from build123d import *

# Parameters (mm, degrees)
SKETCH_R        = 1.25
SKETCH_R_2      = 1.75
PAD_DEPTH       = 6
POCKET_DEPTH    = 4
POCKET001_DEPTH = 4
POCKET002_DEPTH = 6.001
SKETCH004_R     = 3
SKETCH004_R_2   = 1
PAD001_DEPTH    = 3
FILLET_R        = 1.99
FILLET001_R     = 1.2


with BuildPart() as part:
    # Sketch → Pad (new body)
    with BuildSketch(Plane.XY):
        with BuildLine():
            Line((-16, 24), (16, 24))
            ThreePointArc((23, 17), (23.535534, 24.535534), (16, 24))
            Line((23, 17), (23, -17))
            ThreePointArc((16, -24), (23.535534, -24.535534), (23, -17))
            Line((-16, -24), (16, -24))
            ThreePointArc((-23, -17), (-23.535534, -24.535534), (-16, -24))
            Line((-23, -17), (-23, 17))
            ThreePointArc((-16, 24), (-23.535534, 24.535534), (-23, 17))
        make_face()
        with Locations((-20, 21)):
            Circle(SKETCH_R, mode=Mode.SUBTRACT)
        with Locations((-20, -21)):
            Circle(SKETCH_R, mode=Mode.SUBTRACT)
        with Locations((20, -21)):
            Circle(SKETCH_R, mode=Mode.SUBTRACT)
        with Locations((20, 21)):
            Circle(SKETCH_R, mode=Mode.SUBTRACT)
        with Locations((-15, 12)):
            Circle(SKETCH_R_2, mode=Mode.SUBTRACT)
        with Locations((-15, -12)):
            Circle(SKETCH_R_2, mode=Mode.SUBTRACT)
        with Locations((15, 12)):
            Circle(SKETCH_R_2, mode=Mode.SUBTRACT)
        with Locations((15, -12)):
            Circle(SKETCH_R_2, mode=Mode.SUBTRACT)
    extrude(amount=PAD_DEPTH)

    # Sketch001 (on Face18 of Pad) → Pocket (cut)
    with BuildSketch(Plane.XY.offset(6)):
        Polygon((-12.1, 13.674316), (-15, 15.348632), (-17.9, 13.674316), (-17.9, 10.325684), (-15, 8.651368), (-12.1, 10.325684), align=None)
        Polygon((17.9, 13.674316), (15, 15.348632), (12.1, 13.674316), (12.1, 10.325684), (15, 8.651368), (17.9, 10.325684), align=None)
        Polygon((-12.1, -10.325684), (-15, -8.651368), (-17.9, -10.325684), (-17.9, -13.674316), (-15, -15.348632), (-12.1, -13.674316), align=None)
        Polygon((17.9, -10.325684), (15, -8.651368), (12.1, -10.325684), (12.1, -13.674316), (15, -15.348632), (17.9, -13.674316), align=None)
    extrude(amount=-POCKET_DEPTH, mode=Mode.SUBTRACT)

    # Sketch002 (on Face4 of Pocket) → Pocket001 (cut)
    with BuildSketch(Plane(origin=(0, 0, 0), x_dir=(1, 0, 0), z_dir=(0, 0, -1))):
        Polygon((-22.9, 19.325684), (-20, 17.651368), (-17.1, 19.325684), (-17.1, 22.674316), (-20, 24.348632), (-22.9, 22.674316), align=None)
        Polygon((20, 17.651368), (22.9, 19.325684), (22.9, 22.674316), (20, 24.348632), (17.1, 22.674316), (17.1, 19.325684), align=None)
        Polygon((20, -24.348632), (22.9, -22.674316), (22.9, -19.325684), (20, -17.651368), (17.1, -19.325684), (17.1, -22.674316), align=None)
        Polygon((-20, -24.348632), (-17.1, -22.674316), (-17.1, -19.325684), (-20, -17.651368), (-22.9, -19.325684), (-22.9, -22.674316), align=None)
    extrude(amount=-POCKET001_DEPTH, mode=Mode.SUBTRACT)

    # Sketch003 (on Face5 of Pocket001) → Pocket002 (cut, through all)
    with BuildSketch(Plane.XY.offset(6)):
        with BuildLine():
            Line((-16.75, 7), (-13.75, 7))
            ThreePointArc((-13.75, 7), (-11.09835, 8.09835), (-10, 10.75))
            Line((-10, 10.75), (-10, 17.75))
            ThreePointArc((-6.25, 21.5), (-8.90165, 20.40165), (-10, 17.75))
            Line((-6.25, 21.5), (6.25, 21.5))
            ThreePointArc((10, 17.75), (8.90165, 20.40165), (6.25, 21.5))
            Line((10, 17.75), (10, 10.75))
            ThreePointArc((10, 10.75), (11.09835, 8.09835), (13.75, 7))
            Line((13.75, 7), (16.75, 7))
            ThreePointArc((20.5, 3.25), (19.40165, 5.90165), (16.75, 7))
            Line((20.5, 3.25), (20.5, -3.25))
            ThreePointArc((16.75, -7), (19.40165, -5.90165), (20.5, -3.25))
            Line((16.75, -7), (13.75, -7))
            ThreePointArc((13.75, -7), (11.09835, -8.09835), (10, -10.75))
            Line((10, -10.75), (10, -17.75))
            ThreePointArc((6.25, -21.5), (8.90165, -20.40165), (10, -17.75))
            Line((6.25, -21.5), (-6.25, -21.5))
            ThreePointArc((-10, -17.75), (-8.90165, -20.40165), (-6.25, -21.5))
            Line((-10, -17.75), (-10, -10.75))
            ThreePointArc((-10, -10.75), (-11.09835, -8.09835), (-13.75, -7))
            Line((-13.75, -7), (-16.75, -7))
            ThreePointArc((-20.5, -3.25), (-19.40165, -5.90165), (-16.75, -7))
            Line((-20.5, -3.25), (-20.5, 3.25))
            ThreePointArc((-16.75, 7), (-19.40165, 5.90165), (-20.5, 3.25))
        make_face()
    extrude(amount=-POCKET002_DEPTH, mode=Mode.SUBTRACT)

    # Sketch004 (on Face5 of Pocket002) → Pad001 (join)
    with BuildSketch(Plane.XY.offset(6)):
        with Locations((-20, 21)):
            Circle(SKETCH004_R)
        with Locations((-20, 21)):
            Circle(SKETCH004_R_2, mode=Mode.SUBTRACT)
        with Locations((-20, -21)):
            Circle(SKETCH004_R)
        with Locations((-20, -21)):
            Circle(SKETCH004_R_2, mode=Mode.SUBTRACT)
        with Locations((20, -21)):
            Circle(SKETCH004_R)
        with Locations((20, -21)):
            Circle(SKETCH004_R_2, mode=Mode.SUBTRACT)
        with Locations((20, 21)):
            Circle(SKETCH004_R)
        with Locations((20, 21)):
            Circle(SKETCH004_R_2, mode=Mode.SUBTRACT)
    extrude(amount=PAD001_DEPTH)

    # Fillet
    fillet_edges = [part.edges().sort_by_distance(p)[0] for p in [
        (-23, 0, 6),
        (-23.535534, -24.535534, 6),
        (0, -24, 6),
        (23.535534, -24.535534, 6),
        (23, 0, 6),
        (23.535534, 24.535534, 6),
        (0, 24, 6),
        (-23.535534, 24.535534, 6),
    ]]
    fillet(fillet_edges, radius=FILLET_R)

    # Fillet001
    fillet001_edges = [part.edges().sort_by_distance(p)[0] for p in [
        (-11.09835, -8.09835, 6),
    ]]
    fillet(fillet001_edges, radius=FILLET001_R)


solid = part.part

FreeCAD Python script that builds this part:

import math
import FreeCAD as App
import Part
import Sketcher
from FreeCAD import Vector
Q = App.Units.Quantity


def edges_at(feature, points):
    """Names of the edges that pass closest to the given points."""
    edges = feature.Shape.Edges
    near = lambda p: min(range(len(edges)), key=lambda i: edges[i].distToShape(Part.Vertex(*p))[0])
    return sorted({f"Edge{near(p) + 1}" for p in points})

doc = App.newDocument("Part")
params = doc.addObject("Spreadsheet::Sheet", "Params")
for row, (alias, value) in enumerate([
    ("sketch1_radius", "5 mm"),
    ("sketch1_diameter", "2.5 mm"),
    ("sketch1_diameter2", "3.5 mm"),
    ("sketch1_width", "32 mm"),
    ("sketch1_height", "34 mm"),
    ("pad1_length", "6 mm"),
    ("pocket1_length", "4 mm"),
    ("pocket2_length", "4 mm"),
    ("sketch4_width", "3 mm"),
    ("sketch4_height", "7 mm"),
    ("sketch4_radius", "3.750001 mm"),
    ("sketch4_width2", "12.5 mm"),
    ("sketch4_height2", "6.5 mm"),
    ("sketch5_diameter", "6 mm"),
    ("sketch5_diameter2", "2 mm"),
    ("pad2_length", "3 mm"),
    ("fillet_radius", "1.99 mm"),
    ("fillet2_radius", "1.2 mm"),
], start=1):
    params.set(f"A{row}", alias)
    params.set(f"B{row}", "=" + value)
    params.setAlias(f"B{row}", alias)

body = doc.addObject("PartDesign::Body", "Body")

sketch1 = body.newObject("Sketcher::SketchObject", "Sketch")
sketch1.AttachmentSupport = (doc.getObject("XY_Plane"), [""])
sketch1.MapMode = "FlatFace"
sketch1.addGeometry([
    Part.LineSegment(Vector(16, 24, 0), Vector(-16, 24, 0)),
    Part.ArcOfCircle(Part.Circle(Vector(-20, 21, 0), Vector(0, 0, 1), 5), math.radians(36.869896), math.radians(233.130104)),
    Part.LineSegment(Vector(-23, 17, 0), Vector(-23, -17, 0)),
    Part.ArcOfCircle(Part.Circle(Vector(-20, -21, 0), Vector(0, 0, 1), 5), math.radians(126.869896), math.radians(323.130104)),
    Part.LineSegment(Vector(-16, -24, 0), Vector(16, -24, 0)),
    Part.ArcOfCircle(Part.Circle(Vector(20, -21, 0), Vector(0, 0, 1), 5), math.radians(-143.130104), math.radians(53.130104)),
    Part.LineSegment(Vector(23, -17, 0), Vector(23, 17, 0)),
    Part.ArcOfCircle(Part.Circle(Vector(20, 21, 0), Vector(0, 0, 1), 5), math.radians(-53.130104), math.radians(143.130104)),
    Part.Circle(Vector(20, -21, 0), Vector(0, 0, 1), 1.25),
    Part.Circle(Vector(15, -12, 0), Vector(0, 0, 1), 1.75),
    Part.Circle(Vector(-20, -21, 0), Vector(0, 0, 1), 1.25),
    Part.Circle(Vector(-15, -12, 0), Vector(0, 0, 1), 1.75),
    Part.Circle(Vector(15, 12, 0), Vector(0, 0, 1), 1.75),
    Part.Circle(Vector(20, 21, 0), Vector(0, 0, 1), 1.25),
    Part.Circle(Vector(-15, 12, 0), Vector(0, 0, 1), 1.75),
    Part.Circle(Vector(-20, 21, 0), Vector(0, 0, 1), 1.25),
], False)
sketch1.addConstraint([
    Sketcher.Constraint("Coincident", 0, 2, 1, 1),
    Sketcher.Constraint("Coincident", 1, 2, 2, 1),
    Sketcher.Constraint("Coincident", 2, 2, 3, 1),
    Sketcher.Constraint("Coincident", 3, 2, 4, 1),
    Sketcher.Constraint("Coincident", 4, 2, 5, 1),
    Sketcher.Constraint("Coincident", 5, 2, 6, 1),
    Sketcher.Constraint("Coincident", 6, 2, 7, 1),
    Sketcher.Constraint("Coincident", 7, 2, 0, 1),
    Sketcher.Constraint("Horizontal", 0),
    Sketcher.Constraint("Vertical", 2),
    Sketcher.Constraint("Horizontal", 4),
    Sketcher.Constraint("Vertical", 6),
    Sketcher.Constraint("Coincident", 8, 3, 5, 3),
    Sketcher.Constraint("Coincident", 10, 3, 3, 3),
    Sketcher.Constraint("Coincident", 13, 3, 7, 3),
    Sketcher.Constraint("Coincident", 15, 3, 1, 3),
    Sketcher.Constraint("Equal", 1, 3),
    Sketcher.Constraint("Equal", 3, 5),
    Sketcher.Constraint("Equal", 5, 7),
    Sketcher.Constraint("Equal", 8, 10),
    Sketcher.Constraint("Equal", 9, 11),
    Sketcher.Constraint("Equal", 11, 12),
    Sketcher.Constraint("Equal", 10, 13),
    Sketcher.Constraint("Equal", 12, 14),
    Sketcher.Constraint("Equal", 13, 15),
    Sketcher.Constraint("Symmetric", 1, 3, 5, 3, -1, 1),
    Sketcher.Constraint("Symmetric", 3, 3, 7, 3, -1, 1),
    Sketcher.Constraint("Symmetric", 11, 3, 12, 3, -1, 1),
    Sketcher.Constraint("Symmetric", 9, 3, 14, 3, -1, 1),
    Sketcher.Constraint("Symmetric", 3, 3, 5, 3, -2),
    Sketcher.Constraint("Symmetric", 9, 3, 11, 3, -2),
    Sketcher.Constraint("Horizontal", 2, 2, 5, 2),
    Sketcher.Constraint("Vertical", 0, 2, 3, 2),
    Sketcher.Constraint("Radius", 1, 5.0),
    Sketcher.Constraint("Diameter", 8, 2.5),
    Sketcher.Constraint("Diameter", 9, 3.5),
    Sketcher.Constraint("DistanceX", 0, 2, 0, 1, 32.0),
    Sketcher.Constraint("DistanceY", 2, 2, 2, 1, 34.0),
    Sketcher.Constraint("DistanceX", 1, 3, -1, 1, 20.0),
    Sketcher.Constraint("DistanceY", -1, 1, 1, 3, 21.0),
    Sketcher.Constraint("DistanceX", -1, 1, 9, 3, 15.0),
    Sketcher.Constraint("DistanceY", 9, 3, -1, 1, 12.0),
])
sketch1.setExpression("Constraints[33]", "Params.sketch1_radius")
sketch1.setExpression("Constraints[34]", "Params.sketch1_diameter")
sketch1.setExpression("Constraints[35]", "Params.sketch1_diameter2")
sketch1.setExpression("Constraints[36]", "Params.sketch1_width")
sketch1.setExpression("Constraints[37]", "Params.sketch1_height")
pad1 = body.newObject("PartDesign::Pad", "Pad")
pad1.Profile = sketch1
pad1.setExpression("Length", "Params.pad1_length")

sketch2 = body.newObject("Sketcher::SketchObject", "Sketch001")
sketch2.AttachmentSupport = (doc.getObject("XY_Plane"), [""])
sketch2.MapMode = "FlatFace"
sketch2.AttachmentOffset = App.Placement(Vector(0, 0, 6), App.Rotation())
sketch2.addGeometry([
    Part.LineSegment(Vector(-12.1, 13.674316, 0), Vector(-15, 15.348632, 0)),
    Part.LineSegment(Vector(-15, 15.348632, 0), Vector(-17.9, 13.674316, 0)),
    Part.LineSegment(Vector(-17.9, 13.674316, 0), Vector(-17.9, 10.325684, 0)),
    Part.LineSegment(Vector(-17.9, 10.325684, 0), Vector(-15, 8.651368, 0)),
    Part.LineSegment(Vector(-15, 8.651368, 0), Vector(-12.1, 10.325684, 0)),
    Part.LineSegment(Vector(-12.1, 10.325684, 0), Vector(-12.1, 13.674316, 0)),
    Part.LineSegment(Vector(17.9, 13.674316, 0), Vector(15, 15.348632, 0)),
    Part.LineSegment(Vector(15, 15.348632, 0), Vector(12.1, 13.674316, 0)),
    Part.LineSegment(Vector(12.1, 13.674316, 0), Vector(12.1, 10.325684, 0)),
    Part.LineSegment(Vector(12.1, 10.325684, 0), Vector(15, 8.651368, 0)),
    Part.LineSegment(Vector(15, 8.651368, 0), Vector(17.9, 10.325684, 0)),
    Part.LineSegment(Vector(17.9, 10.325684, 0), Vector(17.9, 13.674316, 0)),
    Part.LineSegment(Vector(-12.1, -10.325684, 0), Vector(-15, -8.651368, 0)),
    Part.LineSegment(Vector(-15, -8.651368, 0), Vector(-17.9, -10.325684, 0)),
    Part.LineSegment(Vector(-17.9, -10.325684, 0), Vector(-17.9, -13.674316, 0)),
    Part.LineSegment(Vector(-17.9, -13.674316, 0), Vector(-15, -15.348632, 0)),
    Part.LineSegment(Vector(-15, -15.348632, 0), Vector(-12.1, -13.674316, 0)),
    Part.LineSegment(Vector(-12.1, -13.674316, 0), Vector(-12.1, -10.325684, 0)),
    Part.LineSegment(Vector(17.9, -10.325684, 0), Vector(15, -8.651368, 0)),
    Part.LineSegment(Vector(15, -8.651368, 0), Vector(12.1, -10.325684, 0)),
    Part.LineSegment(Vector(12.1, -10.325684, 0), Vector(12.1, -13.674316, 0)),
    Part.LineSegment(Vector(12.1, -13.674316, 0), Vector(15, -15.348632, 0)),
    Part.LineSegment(Vector(15, -15.348632, 0), Vector(17.9, -13.674316, 0)),
    Part.LineSegment(Vector(17.9, -13.674316, 0), Vector(17.9, -10.325684, 0)),
], False)
sketch2.addConstraint([
    Sketcher.Constraint("Coincident", 0, 2, 1, 1),
    Sketcher.Constraint("Coincident", 1, 2, 2, 1),
    Sketcher.Constraint("Coincident", 2, 2, 3, 1),
    Sketcher.Constraint("Coincident", 3, 2, 4, 1),
    Sketcher.Constraint("Coincident", 4, 2, 5, 1),
    Sketcher.Constraint("Coincident", 5, 2, 0, 1),
    Sketcher.Constraint("Coincident", 6, 2, 7, 1),
    Sketcher.Constraint("Coincident", 7, 2, 8, 1),
    Sketcher.Constraint("Coincident", 8, 2, 9, 1),
    Sketcher.Constraint("Coincident", 9, 2, 10, 1),
    Sketcher.Constraint("Coincident", 10, 2, 11, 1),
    Sketcher.Constraint("Coincident", 11, 2, 6, 1),
    Sketcher.Constraint("Coincident", 12, 2, 13, 1),
    Sketcher.Constraint("Coincident", 13, 2, 14, 1),
    Sketcher.Constraint("Coincident", 14, 2, 15, 1),
    Sketcher.Constraint("Coincident", 15, 2, 16, 1),
    Sketcher.Constraint("Coincident", 16, 2, 17, 1),
    Sketcher.Constraint("Coincident", 17, 2, 12, 1),
    Sketcher.Constraint("Coincident", 18, 2, 19, 1),
    Sketcher.Constraint("Coincident", 19, 2, 20, 1),
    Sketcher.Constraint("Coincident", 20, 2, 21, 1),
    Sketcher.Constraint("Coincident", 21, 2, 22, 1),
    Sketcher.Constraint("Coincident", 22, 2, 23, 1),
    Sketcher.Constraint("Coincident", 23, 2, 18, 1),
    Sketcher.Constraint("Vertical", 2),
    Sketcher.Constraint("Vertical", 5),
    Sketcher.Constraint("Vertical", 8),
    Sketcher.Constraint("Vertical", 11),
    Sketcher.Constraint("Vertical", 14),
    Sketcher.Constraint("Vertical", 17),
    Sketcher.Constraint("Vertical", 20),
    Sketcher.Constraint("Vertical", 23),
    Sketcher.Constraint("Symmetric", 9, 2, 12, 2, -1, 1),
    Sketcher.Constraint("Symmetric", 10, 2, 13, 2, -1, 1),
    Sketcher.Constraint("Symmetric", 6, 2, 15, 2, -1, 1),
    Sketcher.Constraint("Symmetric", 7, 2, 16, 2, -1, 1),
    Sketcher.Constraint("Symmetric", 3, 2, 18, 2, -1, 1),
    Sketcher.Constraint("Symmetric", 4, 2, 19, 2, -1, 1),
    Sketcher.Constraint("Symmetric", 0, 2, 21, 2, -1, 1),
    Sketcher.Constraint("Symmetric", 1, 2, 22, 2, -1, 1),
    Sketcher.Constraint("Symmetric", 0, 2, 6, 2, -2),
    Sketcher.Constraint("Symmetric", 5, 2, 7, 2, -2),
    Sketcher.Constraint("Symmetric", 3, 2, 9, 2, -2),
    Sketcher.Constraint("Symmetric", 2, 2, 10, 2, -2),
    Sketcher.Constraint("Parallel", 0, 3),
    Sketcher.Constraint("Parallel", 1, 4),
    Sketcher.Constraint("Parallel", 3, 6),
    Sketcher.Constraint("Parallel", 4, 7),
    Sketcher.Constraint("Parallel", 6, 9),
    Sketcher.Constraint("Parallel", 9, 12),
    Sketcher.Constraint("Parallel", 12, 15),
    Sketcher.Constraint("Parallel", 15, 18),
    Sketcher.Constraint("Parallel", 18, 21),
    Sketcher.Constraint("Horizontal", 2, 2, 4, 2),
    Sketcher.Constraint("Horizontal", 1, 2, 5, 2),
    Sketcher.Constraint("Angle", 0, Q("149.999997 deg")),
    Sketcher.Constraint("DistanceX", 0, 2, -1, 1, 15.0),
    Sketcher.Constraint("DistanceY", 13, 2, 1, 2, 24.0),
    Sketcher.Constraint("DistanceX", 1, 2, -1, 1, 17.9),
    Sketcher.Constraint("DistanceY", 2, 2, 2, 1, 3.348632),
])
pocket1 = body.newObject("PartDesign::Pocket", "Pocket")
pocket1.Profile = sketch2
pocket1.setExpression("Length", "Params.pocket1_length")

sketch3 = body.newObject("Sketcher::SketchObject", "Sketch002")
sketch3.AttachmentSupport = (doc.getObject("XY_Plane"), [""])
sketch3.MapMode = "FlatFace"
sketch3.addGeometry([
    Part.LineSegment(Vector(-22.9, -19.325684, 0), Vector(-20, -17.651368, 0)),
    Part.LineSegment(Vector(-20, -17.651368, 0), Vector(-17.1, -19.325684, 0)),
    Part.LineSegment(Vector(-17.1, -19.325684, 0), Vector(-17.1, -22.674316, 0)),
    Part.LineSegment(Vector(-17.1, -22.674316, 0), Vector(-20, -24.348632, 0)),
    Part.LineSegment(Vector(-20, -24.348632, 0), Vector(-22.9, -22.674316, 0)),
    Part.LineSegment(Vector(-22.9, -22.674316, 0), Vector(-22.9, -19.325684, 0)),
    Part.LineSegment(Vector(20, -17.651368, 0), Vector(22.9, -19.325684, 0)),
    Part.LineSegment(Vector(22.9, -19.325684, 0), Vector(22.9, -22.674316, 0)),
    Part.LineSegment(Vector(22.9, -22.674316, 0), Vector(20, -24.348632, 0)),
    Part.LineSegment(Vector(20, -24.348632, 0), Vector(17.1, -22.674316, 0)),
    Part.LineSegment(Vector(17.1, -22.674316, 0), Vector(17.1, -19.325684, 0)),
    Part.LineSegment(Vector(17.1, -19.325684, 0), Vector(20, -17.651368, 0)),
    Part.LineSegment(Vector(20, 24.348632, 0), Vector(22.9, 22.674316, 0)),
    Part.LineSegment(Vector(22.9, 22.674316, 0), Vector(22.9, 19.325684, 0)),
    Part.LineSegment(Vector(22.9, 19.325684, 0), Vector(20, 17.651368, 0)),
    Part.LineSegment(Vector(20, 17.651368, 0), Vector(17.1, 19.325684, 0)),
    Part.LineSegment(Vector(17.1, 19.325684, 0), Vector(17.1, 22.674316, 0)),
    Part.LineSegment(Vector(17.1, 22.674316, 0), Vector(20, 24.348632, 0)),
    Part.LineSegment(Vector(-20, 24.348632, 0), Vector(-17.1, 22.674316, 0)),
    Part.LineSegment(Vector(-17.1, 22.674316, 0), Vector(-17.1, 19.325684, 0)),
    Part.LineSegment(Vector(-17.1, 19.325684, 0), Vector(-20, 17.651368, 0)),
    Part.LineSegment(Vector(-20, 17.651368, 0), Vector(-22.9, 19.325684, 0)),
    Part.LineSegment(Vector(-22.9, 19.325684, 0), Vector(-22.9, 22.674316, 0)),
    Part.LineSegment(Vector(-22.9, 22.674316, 0), Vector(-20, 24.348632, 0)),
], False)
sketch3.addConstraint([
    Sketcher.Constraint("Coincident", 0, 2, 1, 1),
    Sketcher.Constraint("Coincident", 1, 2, 2, 1),
    Sketcher.Constraint("Coincident", 2, 2, 3, 1),
    Sketcher.Constraint("Coincident", 3, 2, 4, 1),
    Sketcher.Constraint("Coincident", 4, 2, 5, 1),
    Sketcher.Constraint("Coincident", 5, 2, 0, 1),
    Sketcher.Constraint("Coincident", 6, 2, 7, 1),
    Sketcher.Constraint("Coincident", 7, 2, 8, 1),
    Sketcher.Constraint("Coincident", 8, 2, 9, 1),
    Sketcher.Constraint("Coincident", 9, 2, 10, 1),
    Sketcher.Constraint("Coincident", 10, 2, 11, 1),
    Sketcher.Constraint("Coincident", 11, 2, 6, 1),
    Sketcher.Constraint("Coincident", 12, 2, 13, 1),
    Sketcher.Constraint("Coincident", 13, 2, 14, 1),
    Sketcher.Constraint("Coincident", 14, 2, 15, 1),
    Sketcher.Constraint("Coincident", 15, 2, 16, 1),
    Sketcher.Constraint("Coincident", 16, 2, 17, 1),
    Sketcher.Constraint("Coincident", 17, 2, 12, 1),
    Sketcher.Constraint("Coincident", 18, 2, 19, 1),
    Sketcher.Constraint("Coincident", 19, 2, 20, 1),
    Sketcher.Constraint("Coincident", 20, 2, 21, 1),
    Sketcher.Constraint("Coincident", 21, 2, 22, 1),
    Sketcher.Constraint("Coincident", 22, 2, 23, 1),
    Sketcher.Constraint("Coincident", 23, 2, 18, 1),
    Sketcher.Constraint("Vertical", 2),
    Sketcher.Constraint("Vertical", 5),
    Sketcher.Constraint("Vertical", 7),
    Sketcher.Constraint("Vertical", 10),
    Sketcher.Constraint("Vertical", 13),
    Sketcher.Constraint("Vertical", 16),
    Sketcher.Constraint("Vertical", 19),
    Sketcher.Constraint("Vertical", 22),
    Sketcher.Constraint("Symmetric", 4, 2, 12, 2, -1, 1),
    Sketcher.Constraint("Symmetric", 0, 2, 14, 2, -1, 1),
    Sketcher.Constraint("Symmetric", 1, 2, 15, 2, -1, 1),
    Sketcher.Constraint("Symmetric", 3, 2, 17, 2, -1, 1),
    Sketcher.Constraint("Symmetric", 9, 2, 18, 2, -1, 1),
    Sketcher.Constraint("Symmetric", 11, 2, 20, 2, -1, 1),
    Sketcher.Constraint("Symmetric", 6, 2, 21, 2, -1, 1),
    Sketcher.Constraint("Symmetric", 8, 2, 23, 2, -1, 1),
    Sketcher.Constraint("Symmetric", 5, 2, 6, 2, -2),
    Sketcher.Constraint("Symmetric", 3, 2, 8, 2, -2),
    Sketcher.Constraint("Symmetric", 2, 2, 9, 2, -2),
    Sketcher.Constraint("Symmetric", 0, 2, 11, 2, -2),
    Sketcher.Constraint("Parallel", 0, 3),
    Sketcher.Constraint("Parallel", 1, 4),
    Sketcher.Constraint("Parallel", 4, 6),
    Sketcher.Constraint("Parallel", 3, 8),
    Sketcher.Constraint("Parallel", 8, 11),
    Sketcher.Constraint("Parallel", 11, 14),
    Sketcher.Constraint("Parallel", 14, 17),
    Sketcher.Constraint("Parallel", 17, 20),
    Sketcher.Constraint("Parallel", 20, 23),
    Sketcher.Constraint("Horizontal", 2, 2, 4, 2),
    Sketcher.Constraint("Horizontal", 1, 2, 5, 2),
    Sketcher.Constraint("Angle", 0, Q("30.000003 deg")),
    Sketcher.Constraint("DistanceX", 0, 2, -1, 1, 20.0),
    Sketcher.Constraint("DistanceY", 6, 2, 12, 2, 42.0),
    Sketcher.Constraint("DistanceX", 1, 2, -1, 1, 17.1),
    Sketcher.Constraint("DistanceY", 2, 2, 2, 1, 3.348632),
])
pocket2 = body.newObject("PartDesign::Pocket", "Pocket001")
pocket2.Profile = sketch3
pocket2.setExpression("Length", "Params.pocket2_length")
pocket2.Reversed = True

sketch4 = body.newObject("Sketcher::SketchObject", "Sketch003")
sketch4.AttachmentSupport = (doc.getObject("XY_Plane"), [""])
sketch4.MapMode = "FlatFace"
sketch4.AttachmentOffset = App.Placement(Vector(0, 0, 6), App.Rotation())
sketch4.addGeometry([
    Part.LineSegment(Vector(-13.75, 7, 0), Vector(-16.75, 7, 0)),
    Part.ArcOfCircle(Part.Circle(Vector(-16.749999, 3.249999, 0), Vector(0, 0, 1), 3.750001), math.radians(90.000022), math.radians(179.999978)),
    Part.LineSegment(Vector(-20.5, 3.25, 0), Vector(-20.5, -3.25, 0)),
    Part.ArcOfCircle(Part.Circle(Vector(-16.749999, -3.249999, 0), Vector(0, 0, 1), 3.750001), math.radians(-179.999978), math.radians(-90.000022)),
    Part.LineSegment(Vector(-16.75, -7, 0), Vector(-13.75, -7, 0)),
    Part.ArcOfCircle(Part.Circle(Vector(-13.750001, -10.750001, 0), Vector(0, 0, 1), 3.750001), math.radians(0.000022), math.radians(89.999978)),
    Part.LineSegment(Vector(-10, -10.75, 0), Vector(-10, -17.75, 0)),
    Part.ArcOfCircle(Part.Circle(Vector(-6.249999, -17.749999, 0), Vector(0, 0, 1), 3.750001), math.radians(-179.999978), math.radians(-90.000022)),
    Part.LineSegment(Vector(-6.25, -21.5, 0), Vector(6.25, -21.5, 0)),
    Part.ArcOfCircle(Part.Circle(Vector(6.249999, -17.749999, 0), Vector(0, 0, 1), 3.750001), math.radians(-89.999978), math.radians(-0.000022)),
    Part.LineSegment(Vector(10, -17.75, 0), Vector(10, -10.75, 0)),
    Part.ArcOfCircle(Part.Circle(Vector(13.750001, -10.750001, 0), Vector(0, 0, 1), 3.750001), math.radians(90.000022), math.radians(179.999978)),
    Part.LineSegment(Vector(13.75, -7, 0), Vector(16.75, -7, 0)),
    Part.ArcOfCircle(Part.Circle(Vector(16.749999, -3.249999, 0), Vector(0, 0, 1), 3.750001), math.radians(-89.999978), math.radians(-0.000022)),
    Part.LineSegment(Vector(20.5, -3.25, 0), Vector(20.5, 3.25, 0)),
    Part.ArcOfCircle(Part.Circle(Vector(16.749999, 3.249999, 0), Vector(0, 0, 1), 3.750001), math.radians(0.000022), math.radians(89.999978)),
    Part.LineSegment(Vector(16.75, 7, 0), Vector(13.75, 7, 0)),
    Part.ArcOfCircle(Part.Circle(Vector(13.750001, 10.750001, 0), Vector(0, 0, 1), 3.750001), math.radians(-179.999978), math.radians(-90.000022)),
    Part.LineSegment(Vector(10, 10.75, 0), Vector(10, 17.75, 0)),
    Part.ArcOfCircle(Part.Circle(Vector(6.249999, 17.749999, 0), Vector(0, 0, 1), 3.750001), math.radians(0.000022), math.radians(89.999978)),
    Part.LineSegment(Vector(6.25, 21.5, 0), Vector(-6.25, 21.5, 0)),
    Part.ArcOfCircle(Part.Circle(Vector(-6.249999, 17.749999, 0), Vector(0, 0, 1), 3.750001), math.radians(90.000022), math.radians(179.999978)),
    Part.LineSegment(Vector(-10, 17.75, 0), Vector(-10, 10.75, 0)),
    Part.ArcOfCircle(Part.Circle(Vector(-13.750001, 10.750001, 0), Vector(0, 0, 1), 3.750001), math.radians(-89.999978), math.radians(-0.000022)),
], False)
sketch4.addConstraint([
    Sketcher.Constraint("Tangent", 0, 2, 1, 1),
    Sketcher.Constraint("Tangent", 1, 2, 2, 1),
    Sketcher.Constraint("Tangent", 2, 2, 3, 1),
    Sketcher.Constraint("Tangent", 3, 2, 4, 1),
    Sketcher.Constraint("Tangent", 4, 2, 5, 2),
    Sketcher.Constraint("Tangent", 5, 1, 6, 1),
    Sketcher.Constraint("Tangent", 6, 2, 7, 1),
    Sketcher.Constraint("Tangent", 7, 2, 8, 1),
    Sketcher.Constraint("Tangent", 8, 2, 9, 1),
    Sketcher.Constraint("Tangent", 9, 2, 10, 1),
    Sketcher.Constraint("Tangent", 10, 2, 11, 2),
    Sketcher.Constraint("Tangent", 11, 1, 12, 1),
    Sketcher.Constraint("Tangent", 12, 2, 13, 1),
    Sketcher.Constraint("Tangent", 13, 2, 14, 1),
    Sketcher.Constraint("Tangent", 14, 2, 15, 1),
    Sketcher.Constraint("Tangent", 15, 2, 16, 1),
    Sketcher.Constraint("Tangent", 16, 2, 17, 2),
    Sketcher.Constraint("Tangent", 17, 1, 18, 1),
    Sketcher.Constraint("Tangent", 18, 2, 19, 1),
    Sketcher.Constraint("Tangent", 19, 2, 20, 1),
    Sketcher.Constraint("Tangent", 20, 2, 21, 1),
    Sketcher.Constraint("Tangent", 21, 2, 22, 1),
    Sketcher.Constraint("Tangent", 22, 2, 23, 2),
    Sketcher.Constraint("Tangent", 23, 1, 0, 1),
    Sketcher.Constraint("Horizontal", 0),
    Sketcher.Constraint("Vertical", 2),
    Sketcher.Constraint("Horizontal", 4),
    Sketcher.Constraint("Vertical", 6),
    Sketcher.Constraint("Horizontal", 8),
    Sketcher.Constraint("Vertical", 10),
    Sketcher.Constraint("Horizontal", 12),
    Sketcher.Constraint("Vertical", 14),
    Sketcher.Constraint("Horizontal", 16),
    Sketcher.Constraint("Vertical", 18),
    Sketcher.Constraint("Horizontal", 20),
    Sketcher.Constraint("Vertical", 22),
    Sketcher.Constraint("Equal", 1, 3),
    Sketcher.Constraint("Equal", 3, 5),
    Sketcher.Constraint("Equal", 5, 7),
    Sketcher.Constraint("Equal", 7, 9),
    Sketcher.Constraint("Equal", 9, 11),
    Sketcher.Constraint("Equal", 11, 13),
    Sketcher.Constraint("Equal", 13, 15),
    Sketcher.Constraint("Equal", 15, 17),
    Sketcher.Constraint("Equal", 17, 19),
    Sketcher.Constraint("Equal", 19, 21),
    Sketcher.Constraint("Equal", 21, 23),
    Sketcher.Constraint("Symmetric", 1, 3, 13, 3, -1, 1),
    Sketcher.Constraint("Symmetric", 5, 3, 17, 3, -1, 1),
    Sketcher.Constraint("Symmetric", 9, 3, 21, 3, -1, 1),
    Sketcher.Constraint("Symmetric", 5, 3, 11, 3, -2),
    Sketcher.Constraint("DistanceX", 0, 2, 0, 1, 3.0),
    Sketcher.Constraint("DistanceY", 6, 2, 6, 1, 7.0),
    Sketcher.Constraint("Radius", 1, 3.750001),
    Sketcher.Constraint("DistanceX", 8, 1, 8, 2, 12.5),
    Sketcher.Constraint("DistanceY", 2, 2, 2, 1, 6.5),
])
sketch4.setExpression("Constraints[51]", "Params.sketch4_width")
sketch4.setExpression("Constraints[52]", "Params.sketch4_height")
sketch4.setExpression("Constraints[53]", "Params.sketch4_radius")
sketch4.setExpression("Constraints[54]", "Params.sketch4_width2")
sketch4.setExpression("Constraints[55]", "Params.sketch4_height2")
pocket3 = body.newObject("PartDesign::Pocket", "Pocket002")
pocket3.Profile = sketch4
pocket3.Type = "ThroughAll"

sketch5 = body.newObject("Sketcher::SketchObject", "Sketch004")
sketch5.AttachmentSupport = (doc.getObject("XY_Plane"), [""])
sketch5.MapMode = "FlatFace"
sketch5.AttachmentOffset = App.Placement(Vector(0, 0, 6), App.Rotation())
sketch5.addGeometry([
    Part.Circle(Vector(-20, 21, 0), Vector(0, 0, 1), 3),
    Part.Circle(Vector(-20, 21, 0), Vector(0, 0, 1), 1),
    Part.Circle(Vector(-20, -21, 0), Vector(0, 0, 1), 3),
    Part.Circle(Vector(-20, -21, 0), Vector(0, 0, 1), 1),
    Part.Circle(Vector(20, -21, 0), Vector(0, 0, 1), 3),
    Part.Circle(Vector(20, -21, 0), Vector(0, 0, 1), 1),
    Part.Circle(Vector(20, 21, 0), Vector(0, 0, 1), 3),
    Part.Circle(Vector(20, 21, 0), Vector(0, 0, 1), 1),
], False)
sketch5.addConstraint([
    Sketcher.Constraint("Coincident", 1, 3, 0, 3),
    Sketcher.Constraint("Coincident", 3, 3, 2, 3),
    Sketcher.Constraint("Coincident", 5, 3, 4, 3),
    Sketcher.Constraint("Coincident", 7, 3, 6, 3),
    Sketcher.Constraint("Equal", 0, 2),
    Sketcher.Constraint("Equal", 1, 3),
    Sketcher.Constraint("Equal", 2, 4),
    Sketcher.Constraint("Equal", 3, 5),
    Sketcher.Constraint("Equal", 4, 6),
    Sketcher.Constraint("Equal", 5, 7),
    Sketcher.Constraint("Symmetric", 0, 3, 4, 3, -1, 1),
    Sketcher.Constraint("Symmetric", 2, 3, 6, 3, -1, 1),
    Sketcher.Constraint("Symmetric", 2, 3, 4, 3, -2),
    Sketcher.Constraint("Diameter", 0, 6.0),
    Sketcher.Constraint("Diameter", 1, 2.0),
    Sketcher.Constraint("DistanceX", 0, 3, -1, 1, 20.0),
    Sketcher.Constraint("DistanceY", -1, 1, 0, 3, 21.0),
])
sketch5.setExpression("Constraints[13]", "Params.sketch5_diameter")
sketch5.setExpression("Constraints[14]", "Params.sketch5_diameter2")
pad2 = body.newObject("PartDesign::Pad", "Pad001")
pad2.Profile = sketch5
pad2.setExpression("Length", "Params.pad2_length")
doc.recompute()

fillet = body.newObject("PartDesign::Fillet", "Fillet")
fillet.Base = (pad2, edges_at(pad2, [
    (-23, 0, 6),
    (-23.536, -24.536, 6),
    (0, -24, 6),
    (23.536, -24.536, 6),
    (23, 0, 6),
    (23.536, 24.536, 6),
    (0, 24, 6),
    (-23.536, 24.536, 6),
]))
fillet.setExpression("Radius", "Params.fillet_radius")
doc.recompute()

fillet2 = body.newObject("PartDesign::Fillet", "Fillet001")
fillet2.Base = (fillet, edges_at(fillet, [(-11.098, -8.098, 6)]))
fillet2.setExpression("Radius", "Params.fillet2_radius")

doc.recompute()
